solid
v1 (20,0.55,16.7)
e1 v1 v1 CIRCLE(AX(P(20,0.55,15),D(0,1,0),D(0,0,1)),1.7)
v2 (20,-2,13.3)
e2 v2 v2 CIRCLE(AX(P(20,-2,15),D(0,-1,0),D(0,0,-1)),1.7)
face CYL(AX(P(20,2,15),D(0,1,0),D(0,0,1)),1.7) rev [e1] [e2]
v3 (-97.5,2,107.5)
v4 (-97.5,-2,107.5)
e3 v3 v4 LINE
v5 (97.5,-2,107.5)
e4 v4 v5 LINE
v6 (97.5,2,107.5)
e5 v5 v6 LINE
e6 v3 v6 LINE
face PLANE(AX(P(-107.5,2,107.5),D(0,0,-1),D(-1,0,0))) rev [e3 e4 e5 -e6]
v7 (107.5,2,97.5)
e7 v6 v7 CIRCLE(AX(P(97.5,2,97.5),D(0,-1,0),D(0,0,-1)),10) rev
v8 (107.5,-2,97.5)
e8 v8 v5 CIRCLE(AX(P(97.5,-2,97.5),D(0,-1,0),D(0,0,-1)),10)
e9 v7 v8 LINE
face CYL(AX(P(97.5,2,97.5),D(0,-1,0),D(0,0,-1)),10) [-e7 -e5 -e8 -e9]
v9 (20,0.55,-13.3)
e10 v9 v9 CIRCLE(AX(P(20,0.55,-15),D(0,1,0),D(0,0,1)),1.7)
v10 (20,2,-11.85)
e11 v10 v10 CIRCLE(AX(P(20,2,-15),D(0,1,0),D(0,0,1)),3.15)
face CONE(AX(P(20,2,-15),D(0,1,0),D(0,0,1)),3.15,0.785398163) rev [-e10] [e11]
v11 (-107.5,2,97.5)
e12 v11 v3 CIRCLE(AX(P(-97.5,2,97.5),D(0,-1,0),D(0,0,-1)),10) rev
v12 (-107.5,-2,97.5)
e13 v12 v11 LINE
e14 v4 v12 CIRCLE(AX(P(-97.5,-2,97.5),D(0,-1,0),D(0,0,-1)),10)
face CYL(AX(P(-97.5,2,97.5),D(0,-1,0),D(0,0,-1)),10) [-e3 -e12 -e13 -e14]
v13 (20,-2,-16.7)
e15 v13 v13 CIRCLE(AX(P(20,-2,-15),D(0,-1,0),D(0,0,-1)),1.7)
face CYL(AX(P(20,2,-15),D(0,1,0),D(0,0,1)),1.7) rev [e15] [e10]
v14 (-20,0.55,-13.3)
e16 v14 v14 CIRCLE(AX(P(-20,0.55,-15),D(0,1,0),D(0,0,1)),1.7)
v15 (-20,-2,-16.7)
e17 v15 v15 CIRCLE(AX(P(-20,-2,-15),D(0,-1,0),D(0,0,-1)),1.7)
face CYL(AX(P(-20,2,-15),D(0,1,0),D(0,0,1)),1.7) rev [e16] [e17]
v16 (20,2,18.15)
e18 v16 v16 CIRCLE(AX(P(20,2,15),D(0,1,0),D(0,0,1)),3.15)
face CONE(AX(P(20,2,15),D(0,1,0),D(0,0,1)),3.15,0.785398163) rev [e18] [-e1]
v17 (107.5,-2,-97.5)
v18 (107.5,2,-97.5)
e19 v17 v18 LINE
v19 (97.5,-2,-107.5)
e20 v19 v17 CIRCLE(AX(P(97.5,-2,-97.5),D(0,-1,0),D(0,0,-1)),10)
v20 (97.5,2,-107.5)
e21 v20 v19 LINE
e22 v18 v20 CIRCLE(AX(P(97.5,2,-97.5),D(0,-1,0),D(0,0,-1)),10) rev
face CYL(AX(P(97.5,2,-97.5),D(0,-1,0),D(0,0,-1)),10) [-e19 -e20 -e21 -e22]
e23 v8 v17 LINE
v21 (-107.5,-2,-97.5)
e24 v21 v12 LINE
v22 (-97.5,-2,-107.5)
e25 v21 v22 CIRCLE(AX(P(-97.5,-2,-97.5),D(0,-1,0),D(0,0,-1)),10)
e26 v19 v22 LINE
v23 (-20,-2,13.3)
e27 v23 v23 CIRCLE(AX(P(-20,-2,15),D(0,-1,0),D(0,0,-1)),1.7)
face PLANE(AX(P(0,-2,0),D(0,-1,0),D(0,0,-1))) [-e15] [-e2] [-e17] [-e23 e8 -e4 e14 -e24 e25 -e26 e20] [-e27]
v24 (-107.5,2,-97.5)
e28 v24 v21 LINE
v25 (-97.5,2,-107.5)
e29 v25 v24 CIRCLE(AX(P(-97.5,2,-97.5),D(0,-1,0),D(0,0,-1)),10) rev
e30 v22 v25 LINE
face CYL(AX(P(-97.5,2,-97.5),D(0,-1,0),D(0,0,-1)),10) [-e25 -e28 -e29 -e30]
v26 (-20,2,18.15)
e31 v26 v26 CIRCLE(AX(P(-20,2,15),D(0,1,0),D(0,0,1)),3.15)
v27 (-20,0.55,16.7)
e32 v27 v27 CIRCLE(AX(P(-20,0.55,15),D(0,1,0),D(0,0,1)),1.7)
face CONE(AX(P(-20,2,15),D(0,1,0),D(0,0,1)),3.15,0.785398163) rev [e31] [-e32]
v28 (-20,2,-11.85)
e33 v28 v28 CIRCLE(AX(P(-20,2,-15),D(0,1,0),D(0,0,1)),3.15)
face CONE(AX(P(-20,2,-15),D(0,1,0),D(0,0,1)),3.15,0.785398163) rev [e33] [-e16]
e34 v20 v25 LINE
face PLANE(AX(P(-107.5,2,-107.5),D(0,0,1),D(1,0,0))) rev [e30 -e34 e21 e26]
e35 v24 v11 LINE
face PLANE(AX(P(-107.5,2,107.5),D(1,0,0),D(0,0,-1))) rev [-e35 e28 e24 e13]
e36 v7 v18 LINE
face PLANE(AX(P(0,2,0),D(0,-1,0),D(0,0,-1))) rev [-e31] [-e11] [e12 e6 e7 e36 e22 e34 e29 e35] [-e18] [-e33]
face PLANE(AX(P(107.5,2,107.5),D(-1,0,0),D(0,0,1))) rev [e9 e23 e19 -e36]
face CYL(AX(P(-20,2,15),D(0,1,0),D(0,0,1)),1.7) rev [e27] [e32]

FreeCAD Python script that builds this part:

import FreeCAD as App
import Part
import Sketcher

V = App.Vector
Q = App.Units.Quantity


def edges_at(feature, points):
    """Names of the edges that pass closest to the given points."""
    edges = feature.Shape.Edges
    near = lambda p: min(range(len(edges)), key=lambda i: edges[i].distToShape(Part.Vertex(*p))[0])
    return sorted({f"Edge{near(p) + 1}" for p in points})


def add_polygon(sketch, points):
    """Adds a closed chain of lines whose ends are joined by coincident constraints."""
    first, n = sketch.GeometryCount, len(points)
    for a, b in zip(points, points[1:] + points[:1]):
        sketch.addGeometry(Part.LineSegment(App.Vector(*a, 0), App.Vector(*b, 0)), False)
    for i in range(n):
        sketch.addConstraint(Sketcher.Constraint("Coincident", first + i, 2, first + (i + 1) % n, 1))

doc = App.newDocument("Part")
params = doc.addObject("Spreadsheet::Sheet", "Params")
for row, (alias, value) in enumerate([
    ("sketch1_width", "215 mm"),
    ("pad1_length", "4 mm"),
    ("sketch2_diameter", "3.4 mm"),
    ("hole_diameter", "3.4 mm"),
    ("hole_csink_diameter", "6.3 mm"),
    ("fillet_radius", "10 mm"),
], start=1):
    params.set(f"A{row}", alias)
    params.set(f"B{row}", "=" + value)
    params.setAlias(f"B{row}", alias)

body = doc.addObject("PartDesign::Body", "Body")

# Sketch on XZ plane
sketch1 = body.newObject("Sketcher::SketchObject", "Sketch")
sketch1.AttachmentSupport = (doc.getObject("XZ_Plane"), [""])
sketch1.MapMode = "FlatFace"
add_polygon(sketch1, [(-108, -108), (-108, 108), (108, 108), (108, -108)])  # lines 0-3
sketch1.addConstraint([
    Sketcher.Constraint("Vertical", 0),
    Sketcher.Constraint("Horizontal", 1),
    Sketcher.Constraint("Vertical", 2),
    Sketcher.Constraint("Horizontal", 3),
    Sketcher.Constraint("Symmetric", 0, 2, 2, 2, -1, 1),
    Sketcher.Constraint("Equal", 3, 0),
    Sketcher.Constraint("DistanceX", 1, 1, 1, 2, Q("215 mm")),
])
sketch1.setExpression("Constraints[10]", "Params.sketch1_width")
pad1 = body.newObject("PartDesign::Pad", "Pad")
pad1.Profile = sketch1
pad1.setExpression("Length", "Params.pad1_length")
pad1.Midplane = True

# Sketch on XZ plane
sketch2 = body.newObject("Sketcher::SketchObject", "Sketch001")
sketch2.AttachmentSupport = (doc.getObject("XZ_Plane"), [""])
sketch2.MapMode = "FlatFace"
sketch2.AttachmentOffset = App.Placement(V(0, 0, -2), App.Rotation())
sketch2.addGeometry([
    Part.Circle(V(-20, -15, 0), V(0, 0, 1), 1.7),
    Part.Circle(V(20, -15, 0), V(0, 0, 1), 1.7),
    Part.Circle(V(20, 15, 0), V(0, 0, 1), 1.7),
    Part.Circle(V(-20, 15, 0), V(0, 0, 1), 1.7),
], False)
sketch2.addConstraint([
    Sketcher.Constraint("Equal", 0, 1),
    Sketcher.Constraint("Equal", 1, 2),
    Sketcher.Constraint("Equal", 2, 3),
    Sketcher.Constraint("Symmetric", 0, 3, 2, 3, -1, 1),
    Sketcher.Constraint("Symmetric", 1, 3, 3, 3, -1, 1),
    Sketcher.Constraint("Symmetric", 0, 3, 1, 3, -2),
    Sketcher.Constraint("Diameter", 0, Q("3.4 mm")),
    Sketcher.Constraint("DistanceX", 0, 3, -1, 1, Q("20 mm")),
    Sketcher.Constraint("DistanceY", 0, 3, -1, 1, Q("15 mm")),
])
sketch2.setExpression("Constraints[6]", "Params.sketch2_diameter")
doc.recompute()
hole = body.newObject("PartDesign::Hole", "Hole")
hole.Profile = sketch2
hole.ThreadType = "None"
hole.setExpression("Diameter", "Params.hole_diameter")
hole.DepthType = "ThroughAll"
hole.HoleCutType = "Countersink"
hole.setExpression("HoleCutDiameter", "Params.hole_csink_diameter")
hole.HoleCutCountersinkAngle = 90
hole.Reversed = True
doc.recompute()

fillet = body.newObject("PartDesign::Fillet", "Fillet")
fillet.Base = (hole, edges_at(hole, [
    (107.5, 0, 107.5),
    (-107.5, 0, 107.5),
    (-107.5, 0, -107.5),
    (107.5, 0, -107.5),
]))
fillet.setExpression("Radius", "Params.fillet_radius")

doc.recompute()
